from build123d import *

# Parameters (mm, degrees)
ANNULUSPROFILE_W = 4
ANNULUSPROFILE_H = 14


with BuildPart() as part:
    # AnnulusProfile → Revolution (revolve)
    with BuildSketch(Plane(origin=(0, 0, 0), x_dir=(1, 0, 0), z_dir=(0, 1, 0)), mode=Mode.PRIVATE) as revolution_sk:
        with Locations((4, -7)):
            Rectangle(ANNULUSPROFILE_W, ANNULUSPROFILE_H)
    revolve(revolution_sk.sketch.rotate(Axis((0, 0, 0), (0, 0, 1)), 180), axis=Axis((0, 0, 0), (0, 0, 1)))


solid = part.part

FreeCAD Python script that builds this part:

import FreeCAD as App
import Part
import Sketcher
Q = App.Units.Quantity

doc = App.newDocument("Part")
params = doc.addObject("Spreadsheet::Sheet", "Params")
for row, (alias, value) in enumerate([
    ("sketch1_width", "4 mm"),
    ("sketch1_height", "14 mm"),
    ("revolution_angle", "360 deg"),
], start=1):
    params.set(f"A{row}", alias)
    params.set(f"B{row}", "=" + value)
    params.setAlias(f"B{row}", alias)

body = doc.addObject("PartDesign::Body", "Body")

# Sketch on XZ plane
sketch1 = body.newObject("Sketcher::SketchObject", "Sketch")
sketch1.AttachmentSupport = (doc.getObject("XZ_Plane"), [""])
sketch1.MapMode = "FlatFace"
sketch1.addGeometry([
    Part.LineSegment(App.Vector(2, 0, 0), App.Vector(2, 14, 0)),
    Part.LineSegment(App.Vector(2, 14, 0), App.Vector(6, 14, 0)),
    Part.LineSegment(App.Vector(6, 14, 0), App.Vector(6, 0, 0)),
    Part.LineSegment(App.Vector(6, 0, 0), App.Vector(2, 0, 0)),
], False)
sketch1.addConstraint([
    Sketcher.Constraint("Coincident", 0, 2, 1, 1),
    Sketcher.Constraint("Coincident", 1, 2, 2, 1),
    Sketcher.Constraint("Coincident", 2, 2, 3, 1),
    Sketcher.Constraint("Coincident", 3, 2, 0, 1),
    Sketcher.Constraint("Vertical", 0),
    Sketcher.Constraint("Horizontal", 1),
    Sketcher.Constraint("Vertical", 2),
    Sketcher.Constraint("Horizontal", 3),
    Sketcher.Constraint("PointOnObject", 2, 2, -1),
    Sketcher.Constraint("DistanceX", 1, 1, 1, 2, Q("4 mm")),
    Sketcher.Constraint("DistanceY", 0, 1, 0, 2, Q("14 mm")),
    Sketcher.Constraint("DistanceX", -1, 1, 0, 2, Q("2 mm")),
])
sketch1.setExpression("Constraints[9]", "Params.sketch1_width")
sketch1.setExpression("Constraints[10]", "Params.sketch1_height")
revolution = body.newObject("PartDesign::Revolution", "Revolution")
revolution.Profile = sketch1
revolution.ReferenceAxis = (sketch1, ["V_Axis"])
revolution.setExpression("Angle", "Params.revolution_angle")

doc.recompute()
